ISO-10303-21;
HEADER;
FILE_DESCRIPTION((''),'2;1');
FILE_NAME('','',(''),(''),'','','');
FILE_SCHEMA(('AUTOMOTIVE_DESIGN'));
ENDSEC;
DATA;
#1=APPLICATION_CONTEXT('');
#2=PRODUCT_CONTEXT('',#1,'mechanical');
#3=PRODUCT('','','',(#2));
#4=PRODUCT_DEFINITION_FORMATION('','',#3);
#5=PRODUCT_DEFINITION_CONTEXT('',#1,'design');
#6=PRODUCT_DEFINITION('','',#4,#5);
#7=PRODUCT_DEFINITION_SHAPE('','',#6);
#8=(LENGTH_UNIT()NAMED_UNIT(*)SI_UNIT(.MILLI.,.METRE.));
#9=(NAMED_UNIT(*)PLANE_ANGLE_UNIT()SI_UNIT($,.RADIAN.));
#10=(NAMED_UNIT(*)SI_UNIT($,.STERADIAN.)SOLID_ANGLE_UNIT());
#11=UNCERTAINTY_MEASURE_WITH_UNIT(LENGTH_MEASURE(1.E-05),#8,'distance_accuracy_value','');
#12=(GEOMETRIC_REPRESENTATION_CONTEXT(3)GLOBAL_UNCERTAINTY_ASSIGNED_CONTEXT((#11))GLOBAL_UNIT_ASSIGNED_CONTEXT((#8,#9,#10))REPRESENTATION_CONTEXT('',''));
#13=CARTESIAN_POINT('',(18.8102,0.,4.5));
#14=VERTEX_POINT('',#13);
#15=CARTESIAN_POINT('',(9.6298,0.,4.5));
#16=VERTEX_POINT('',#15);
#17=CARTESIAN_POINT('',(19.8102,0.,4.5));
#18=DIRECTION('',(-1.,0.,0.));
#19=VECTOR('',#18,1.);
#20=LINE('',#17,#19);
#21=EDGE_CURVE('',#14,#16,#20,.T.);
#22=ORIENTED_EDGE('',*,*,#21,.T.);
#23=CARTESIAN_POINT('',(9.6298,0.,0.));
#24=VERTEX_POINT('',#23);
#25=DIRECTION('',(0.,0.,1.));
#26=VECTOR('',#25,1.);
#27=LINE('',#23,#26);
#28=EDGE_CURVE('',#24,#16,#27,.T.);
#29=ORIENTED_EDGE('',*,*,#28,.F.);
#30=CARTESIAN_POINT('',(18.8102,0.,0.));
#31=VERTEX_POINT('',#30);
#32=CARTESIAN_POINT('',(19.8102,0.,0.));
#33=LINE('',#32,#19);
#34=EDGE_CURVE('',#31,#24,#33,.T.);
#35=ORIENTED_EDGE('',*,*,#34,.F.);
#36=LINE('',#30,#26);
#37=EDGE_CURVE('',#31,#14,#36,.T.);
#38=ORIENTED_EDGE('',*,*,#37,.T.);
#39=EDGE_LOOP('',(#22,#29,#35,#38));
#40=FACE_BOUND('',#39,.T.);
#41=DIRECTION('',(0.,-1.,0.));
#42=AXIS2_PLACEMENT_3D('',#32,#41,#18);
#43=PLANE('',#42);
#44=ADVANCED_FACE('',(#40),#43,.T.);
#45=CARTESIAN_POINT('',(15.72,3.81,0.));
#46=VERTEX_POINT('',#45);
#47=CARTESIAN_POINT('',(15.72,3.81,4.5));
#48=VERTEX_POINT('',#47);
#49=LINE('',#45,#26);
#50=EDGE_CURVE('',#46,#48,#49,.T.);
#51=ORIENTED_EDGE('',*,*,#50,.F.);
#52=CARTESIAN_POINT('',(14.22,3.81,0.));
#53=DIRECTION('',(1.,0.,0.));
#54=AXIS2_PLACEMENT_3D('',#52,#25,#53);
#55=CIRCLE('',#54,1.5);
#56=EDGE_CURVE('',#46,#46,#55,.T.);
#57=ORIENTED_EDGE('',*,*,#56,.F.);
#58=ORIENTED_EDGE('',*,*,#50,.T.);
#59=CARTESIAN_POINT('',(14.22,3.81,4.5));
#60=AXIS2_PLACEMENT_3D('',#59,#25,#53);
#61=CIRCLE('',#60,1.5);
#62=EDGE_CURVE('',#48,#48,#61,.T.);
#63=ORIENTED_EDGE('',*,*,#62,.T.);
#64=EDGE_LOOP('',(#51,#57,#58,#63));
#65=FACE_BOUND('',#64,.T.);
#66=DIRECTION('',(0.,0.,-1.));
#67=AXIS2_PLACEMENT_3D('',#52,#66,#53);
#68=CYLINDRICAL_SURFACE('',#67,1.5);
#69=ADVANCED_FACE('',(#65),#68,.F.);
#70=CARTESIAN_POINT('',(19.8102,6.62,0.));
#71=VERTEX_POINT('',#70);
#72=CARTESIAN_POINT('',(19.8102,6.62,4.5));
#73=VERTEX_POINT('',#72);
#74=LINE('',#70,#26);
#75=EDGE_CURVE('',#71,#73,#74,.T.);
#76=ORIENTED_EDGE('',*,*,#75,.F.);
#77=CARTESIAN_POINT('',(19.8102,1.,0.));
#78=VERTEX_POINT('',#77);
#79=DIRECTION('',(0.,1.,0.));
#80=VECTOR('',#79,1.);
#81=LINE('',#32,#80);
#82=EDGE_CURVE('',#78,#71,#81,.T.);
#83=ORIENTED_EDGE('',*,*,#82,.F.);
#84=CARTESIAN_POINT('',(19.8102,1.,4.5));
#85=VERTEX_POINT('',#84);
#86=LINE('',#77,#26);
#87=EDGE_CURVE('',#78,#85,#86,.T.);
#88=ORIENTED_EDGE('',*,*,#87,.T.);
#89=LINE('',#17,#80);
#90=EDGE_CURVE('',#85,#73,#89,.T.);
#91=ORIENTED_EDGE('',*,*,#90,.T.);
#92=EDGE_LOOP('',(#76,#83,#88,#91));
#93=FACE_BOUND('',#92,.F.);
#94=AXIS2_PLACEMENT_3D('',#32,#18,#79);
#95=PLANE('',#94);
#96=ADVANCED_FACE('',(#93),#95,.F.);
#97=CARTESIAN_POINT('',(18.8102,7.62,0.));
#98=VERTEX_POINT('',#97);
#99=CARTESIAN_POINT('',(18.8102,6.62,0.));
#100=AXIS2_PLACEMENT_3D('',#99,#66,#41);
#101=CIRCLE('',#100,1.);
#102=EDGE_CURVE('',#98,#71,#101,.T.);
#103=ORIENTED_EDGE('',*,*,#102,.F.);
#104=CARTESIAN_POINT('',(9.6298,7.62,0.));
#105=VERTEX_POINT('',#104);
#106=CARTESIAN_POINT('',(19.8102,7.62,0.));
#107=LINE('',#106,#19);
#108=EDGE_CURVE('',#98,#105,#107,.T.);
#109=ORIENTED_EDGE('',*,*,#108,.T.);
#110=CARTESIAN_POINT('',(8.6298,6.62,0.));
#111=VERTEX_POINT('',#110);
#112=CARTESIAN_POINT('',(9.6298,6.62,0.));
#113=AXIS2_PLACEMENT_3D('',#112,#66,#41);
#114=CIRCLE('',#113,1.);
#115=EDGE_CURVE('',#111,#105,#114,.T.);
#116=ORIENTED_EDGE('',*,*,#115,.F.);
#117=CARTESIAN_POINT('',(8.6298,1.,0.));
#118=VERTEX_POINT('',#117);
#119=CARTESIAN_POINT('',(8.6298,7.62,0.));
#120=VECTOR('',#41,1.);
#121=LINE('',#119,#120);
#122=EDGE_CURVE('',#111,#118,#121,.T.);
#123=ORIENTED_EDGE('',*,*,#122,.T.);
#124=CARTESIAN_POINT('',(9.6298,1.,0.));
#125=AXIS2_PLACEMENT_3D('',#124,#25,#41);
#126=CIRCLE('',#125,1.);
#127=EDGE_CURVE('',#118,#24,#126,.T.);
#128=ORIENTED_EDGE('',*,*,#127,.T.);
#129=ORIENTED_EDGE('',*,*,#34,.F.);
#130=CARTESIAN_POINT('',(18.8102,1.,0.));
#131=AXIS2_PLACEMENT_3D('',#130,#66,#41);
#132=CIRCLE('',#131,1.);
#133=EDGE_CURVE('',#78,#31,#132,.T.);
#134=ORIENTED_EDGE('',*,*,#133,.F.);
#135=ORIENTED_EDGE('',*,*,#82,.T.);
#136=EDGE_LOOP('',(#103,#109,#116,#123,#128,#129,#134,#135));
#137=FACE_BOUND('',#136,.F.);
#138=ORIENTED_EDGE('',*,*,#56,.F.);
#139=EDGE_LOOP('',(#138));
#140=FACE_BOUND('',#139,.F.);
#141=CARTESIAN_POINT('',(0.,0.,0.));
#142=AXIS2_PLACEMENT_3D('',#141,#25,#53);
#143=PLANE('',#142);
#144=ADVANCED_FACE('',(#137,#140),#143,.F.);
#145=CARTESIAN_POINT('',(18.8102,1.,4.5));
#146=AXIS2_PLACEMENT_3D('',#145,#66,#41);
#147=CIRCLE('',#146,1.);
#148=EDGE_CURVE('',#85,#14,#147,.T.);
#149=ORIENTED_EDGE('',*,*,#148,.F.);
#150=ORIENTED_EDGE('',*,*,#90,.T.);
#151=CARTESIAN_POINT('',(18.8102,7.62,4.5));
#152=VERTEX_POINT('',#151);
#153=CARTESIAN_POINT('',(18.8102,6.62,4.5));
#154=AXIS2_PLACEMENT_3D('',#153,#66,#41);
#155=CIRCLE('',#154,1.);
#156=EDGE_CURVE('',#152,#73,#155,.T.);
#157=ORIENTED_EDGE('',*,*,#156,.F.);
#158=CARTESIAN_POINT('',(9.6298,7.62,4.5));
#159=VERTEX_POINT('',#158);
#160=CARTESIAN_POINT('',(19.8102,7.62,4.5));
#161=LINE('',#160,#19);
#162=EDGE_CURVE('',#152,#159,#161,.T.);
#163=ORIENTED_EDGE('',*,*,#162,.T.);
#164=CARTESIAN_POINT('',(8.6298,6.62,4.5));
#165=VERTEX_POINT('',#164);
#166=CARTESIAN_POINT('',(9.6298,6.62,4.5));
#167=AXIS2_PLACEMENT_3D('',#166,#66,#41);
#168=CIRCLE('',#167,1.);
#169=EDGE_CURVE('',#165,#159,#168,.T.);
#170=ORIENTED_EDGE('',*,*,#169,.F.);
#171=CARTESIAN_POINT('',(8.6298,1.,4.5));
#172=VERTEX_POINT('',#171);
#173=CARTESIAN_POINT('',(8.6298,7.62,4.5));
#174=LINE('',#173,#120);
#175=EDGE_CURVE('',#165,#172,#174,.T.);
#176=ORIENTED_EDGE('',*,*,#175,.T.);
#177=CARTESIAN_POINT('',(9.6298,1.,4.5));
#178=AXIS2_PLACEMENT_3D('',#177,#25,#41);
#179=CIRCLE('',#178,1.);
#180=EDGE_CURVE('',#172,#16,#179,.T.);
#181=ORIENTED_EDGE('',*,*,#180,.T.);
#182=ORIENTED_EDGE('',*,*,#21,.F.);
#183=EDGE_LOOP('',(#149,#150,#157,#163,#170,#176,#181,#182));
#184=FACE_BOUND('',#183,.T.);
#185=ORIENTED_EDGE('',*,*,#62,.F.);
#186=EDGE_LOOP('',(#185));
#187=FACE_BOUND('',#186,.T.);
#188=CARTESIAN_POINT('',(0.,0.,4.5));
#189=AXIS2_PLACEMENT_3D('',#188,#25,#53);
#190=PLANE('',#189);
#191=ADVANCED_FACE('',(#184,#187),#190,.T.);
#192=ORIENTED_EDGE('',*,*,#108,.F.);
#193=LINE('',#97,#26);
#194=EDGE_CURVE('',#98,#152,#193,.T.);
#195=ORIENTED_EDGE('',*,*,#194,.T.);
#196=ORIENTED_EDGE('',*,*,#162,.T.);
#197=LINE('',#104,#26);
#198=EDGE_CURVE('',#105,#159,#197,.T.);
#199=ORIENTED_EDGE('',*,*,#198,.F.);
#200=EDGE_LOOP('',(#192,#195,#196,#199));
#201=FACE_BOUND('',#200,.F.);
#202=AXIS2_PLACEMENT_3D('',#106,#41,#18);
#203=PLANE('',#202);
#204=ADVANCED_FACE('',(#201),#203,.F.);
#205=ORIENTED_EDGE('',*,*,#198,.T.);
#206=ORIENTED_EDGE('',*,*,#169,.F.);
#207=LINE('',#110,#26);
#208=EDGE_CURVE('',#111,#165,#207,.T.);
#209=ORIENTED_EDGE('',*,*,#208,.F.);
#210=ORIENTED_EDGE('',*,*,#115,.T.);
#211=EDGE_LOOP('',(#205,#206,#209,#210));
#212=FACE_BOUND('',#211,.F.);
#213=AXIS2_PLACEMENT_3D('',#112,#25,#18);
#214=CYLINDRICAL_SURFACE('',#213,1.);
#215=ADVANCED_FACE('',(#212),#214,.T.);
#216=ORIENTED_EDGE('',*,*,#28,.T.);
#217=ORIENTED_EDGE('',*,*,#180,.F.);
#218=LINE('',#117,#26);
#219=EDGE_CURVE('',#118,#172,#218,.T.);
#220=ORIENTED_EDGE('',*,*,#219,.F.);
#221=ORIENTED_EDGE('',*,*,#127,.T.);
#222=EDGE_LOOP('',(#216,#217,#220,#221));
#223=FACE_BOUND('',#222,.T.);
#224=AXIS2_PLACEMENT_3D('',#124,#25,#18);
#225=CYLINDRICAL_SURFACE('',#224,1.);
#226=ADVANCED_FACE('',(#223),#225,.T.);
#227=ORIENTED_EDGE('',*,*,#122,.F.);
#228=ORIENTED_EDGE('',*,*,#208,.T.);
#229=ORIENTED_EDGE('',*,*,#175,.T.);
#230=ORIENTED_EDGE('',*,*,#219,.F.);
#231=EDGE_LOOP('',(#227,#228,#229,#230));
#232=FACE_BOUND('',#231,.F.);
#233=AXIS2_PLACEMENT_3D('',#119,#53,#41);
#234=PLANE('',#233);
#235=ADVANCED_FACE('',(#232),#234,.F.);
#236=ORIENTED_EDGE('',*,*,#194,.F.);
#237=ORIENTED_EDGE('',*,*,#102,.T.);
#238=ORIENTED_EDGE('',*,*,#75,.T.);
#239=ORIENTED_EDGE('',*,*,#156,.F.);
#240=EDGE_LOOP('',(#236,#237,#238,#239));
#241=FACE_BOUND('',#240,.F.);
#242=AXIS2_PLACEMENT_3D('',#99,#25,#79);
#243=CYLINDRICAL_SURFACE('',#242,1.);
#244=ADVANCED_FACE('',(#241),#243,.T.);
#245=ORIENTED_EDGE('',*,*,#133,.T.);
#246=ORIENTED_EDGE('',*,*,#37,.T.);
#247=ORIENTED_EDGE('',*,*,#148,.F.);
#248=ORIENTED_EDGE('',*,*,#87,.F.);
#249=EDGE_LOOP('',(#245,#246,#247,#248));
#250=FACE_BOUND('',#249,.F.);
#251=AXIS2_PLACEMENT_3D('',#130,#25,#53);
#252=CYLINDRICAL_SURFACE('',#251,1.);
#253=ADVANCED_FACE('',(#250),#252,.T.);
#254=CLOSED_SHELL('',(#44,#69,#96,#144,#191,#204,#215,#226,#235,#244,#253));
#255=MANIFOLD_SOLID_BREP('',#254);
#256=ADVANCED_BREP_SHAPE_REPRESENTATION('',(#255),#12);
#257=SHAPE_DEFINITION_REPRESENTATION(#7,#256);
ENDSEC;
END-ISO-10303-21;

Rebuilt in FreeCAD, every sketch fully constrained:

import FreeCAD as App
import Part
import Sketcher


def edges_at(feature, points):
    """Names of the edges that pass closest to the given points."""
    edges = feature.Shape.Edges
    near = lambda p: min(range(len(edges)), key=lambda i: edges[i].distToShape(Part.Vertex(*p))[0])
    return sorted({f"Edge{near(p) + 1}" for p in points})


def add_polygon(sketch, points):
    """Adds a closed chain of lines whose ends are joined by coincident constraints."""
    first, n = sketch.GeometryCount, len(points)
    for a, b in zip(points, points[1:] + points[:1]):
        sketch.addGeometry(Part.LineSegment(App.Vector(*a, 0), App.Vector(*b, 0)), False)
    for i in range(n):
        sketch.addConstraint(Sketcher.Constraint("Coincident", first + i, 2, first + (i + 1) % n, 1))

doc = App.newDocument("Part")
body = doc.addObject("PartDesign::Body", "Body")

sketch1 = doc.addObject("Sketcher::SketchObject", "Sketch")
body.addObject(sketch1)
sketch1.AttachmentSupport = (doc.XY_Plane, [""])
sketch1.MapMode = "FlatFace"
add_polygon(sketch1, [(8.6, 7.6), (8.6, 0), (19.8, 0), (19.8, 7.6)])
sketch1.addGeometry(Part.Circle(App.Vector(14.2, 3.8, 0), App.Vector(0, 0, 1), 1.5), False)
sketch1.addConstraint([
    Sketcher.Constraint("Vertical", 0),
    Sketcher.Constraint("Horizontal", 1),
    Sketcher.Constraint("Vertical", 2),
    Sketcher.Constraint("Horizontal", 3),
    Sketcher.Constraint("PointOnObject", 0, 2, -1),
    Sketcher.Constraint("Diameter", 4, 3.0),
    Sketcher.Constraint("DistanceY", -1, 1, 4, 3, 3.81),
    Sketcher.Constraint("DistanceY", 4, 3, 2, 2, 3.81),
    Sketcher.Constraint("DistanceX", -1, 1, 4, 3, 14.22),
    Sketcher.Constraint("DistanceX", 1, 1, 1, 2, 11.1804),
    Sketcher.Constraint("DistanceX", -1, 1, 0, 2, 8.6298),
])
pad1 = doc.addObject("PartDesign::Pad", "Pad")
body.addObject(pad1)
pad1.Profile = sketch1
pad1.Length = 4.5
doc.recompute()

fillet = doc.addObject("PartDesign::Fillet", "Fillet")
body.addObject(fillet)
fillet.Base = (pad1, edges_at(pad1, [
    (8.63, 7.62, 2.25),
    (8.63, 0, 2.25),
    (19.81, 7.62, 2.25),
    (19.81, 0, 2.25),
]))
fillet.Radius = 1

doc.recompute()
